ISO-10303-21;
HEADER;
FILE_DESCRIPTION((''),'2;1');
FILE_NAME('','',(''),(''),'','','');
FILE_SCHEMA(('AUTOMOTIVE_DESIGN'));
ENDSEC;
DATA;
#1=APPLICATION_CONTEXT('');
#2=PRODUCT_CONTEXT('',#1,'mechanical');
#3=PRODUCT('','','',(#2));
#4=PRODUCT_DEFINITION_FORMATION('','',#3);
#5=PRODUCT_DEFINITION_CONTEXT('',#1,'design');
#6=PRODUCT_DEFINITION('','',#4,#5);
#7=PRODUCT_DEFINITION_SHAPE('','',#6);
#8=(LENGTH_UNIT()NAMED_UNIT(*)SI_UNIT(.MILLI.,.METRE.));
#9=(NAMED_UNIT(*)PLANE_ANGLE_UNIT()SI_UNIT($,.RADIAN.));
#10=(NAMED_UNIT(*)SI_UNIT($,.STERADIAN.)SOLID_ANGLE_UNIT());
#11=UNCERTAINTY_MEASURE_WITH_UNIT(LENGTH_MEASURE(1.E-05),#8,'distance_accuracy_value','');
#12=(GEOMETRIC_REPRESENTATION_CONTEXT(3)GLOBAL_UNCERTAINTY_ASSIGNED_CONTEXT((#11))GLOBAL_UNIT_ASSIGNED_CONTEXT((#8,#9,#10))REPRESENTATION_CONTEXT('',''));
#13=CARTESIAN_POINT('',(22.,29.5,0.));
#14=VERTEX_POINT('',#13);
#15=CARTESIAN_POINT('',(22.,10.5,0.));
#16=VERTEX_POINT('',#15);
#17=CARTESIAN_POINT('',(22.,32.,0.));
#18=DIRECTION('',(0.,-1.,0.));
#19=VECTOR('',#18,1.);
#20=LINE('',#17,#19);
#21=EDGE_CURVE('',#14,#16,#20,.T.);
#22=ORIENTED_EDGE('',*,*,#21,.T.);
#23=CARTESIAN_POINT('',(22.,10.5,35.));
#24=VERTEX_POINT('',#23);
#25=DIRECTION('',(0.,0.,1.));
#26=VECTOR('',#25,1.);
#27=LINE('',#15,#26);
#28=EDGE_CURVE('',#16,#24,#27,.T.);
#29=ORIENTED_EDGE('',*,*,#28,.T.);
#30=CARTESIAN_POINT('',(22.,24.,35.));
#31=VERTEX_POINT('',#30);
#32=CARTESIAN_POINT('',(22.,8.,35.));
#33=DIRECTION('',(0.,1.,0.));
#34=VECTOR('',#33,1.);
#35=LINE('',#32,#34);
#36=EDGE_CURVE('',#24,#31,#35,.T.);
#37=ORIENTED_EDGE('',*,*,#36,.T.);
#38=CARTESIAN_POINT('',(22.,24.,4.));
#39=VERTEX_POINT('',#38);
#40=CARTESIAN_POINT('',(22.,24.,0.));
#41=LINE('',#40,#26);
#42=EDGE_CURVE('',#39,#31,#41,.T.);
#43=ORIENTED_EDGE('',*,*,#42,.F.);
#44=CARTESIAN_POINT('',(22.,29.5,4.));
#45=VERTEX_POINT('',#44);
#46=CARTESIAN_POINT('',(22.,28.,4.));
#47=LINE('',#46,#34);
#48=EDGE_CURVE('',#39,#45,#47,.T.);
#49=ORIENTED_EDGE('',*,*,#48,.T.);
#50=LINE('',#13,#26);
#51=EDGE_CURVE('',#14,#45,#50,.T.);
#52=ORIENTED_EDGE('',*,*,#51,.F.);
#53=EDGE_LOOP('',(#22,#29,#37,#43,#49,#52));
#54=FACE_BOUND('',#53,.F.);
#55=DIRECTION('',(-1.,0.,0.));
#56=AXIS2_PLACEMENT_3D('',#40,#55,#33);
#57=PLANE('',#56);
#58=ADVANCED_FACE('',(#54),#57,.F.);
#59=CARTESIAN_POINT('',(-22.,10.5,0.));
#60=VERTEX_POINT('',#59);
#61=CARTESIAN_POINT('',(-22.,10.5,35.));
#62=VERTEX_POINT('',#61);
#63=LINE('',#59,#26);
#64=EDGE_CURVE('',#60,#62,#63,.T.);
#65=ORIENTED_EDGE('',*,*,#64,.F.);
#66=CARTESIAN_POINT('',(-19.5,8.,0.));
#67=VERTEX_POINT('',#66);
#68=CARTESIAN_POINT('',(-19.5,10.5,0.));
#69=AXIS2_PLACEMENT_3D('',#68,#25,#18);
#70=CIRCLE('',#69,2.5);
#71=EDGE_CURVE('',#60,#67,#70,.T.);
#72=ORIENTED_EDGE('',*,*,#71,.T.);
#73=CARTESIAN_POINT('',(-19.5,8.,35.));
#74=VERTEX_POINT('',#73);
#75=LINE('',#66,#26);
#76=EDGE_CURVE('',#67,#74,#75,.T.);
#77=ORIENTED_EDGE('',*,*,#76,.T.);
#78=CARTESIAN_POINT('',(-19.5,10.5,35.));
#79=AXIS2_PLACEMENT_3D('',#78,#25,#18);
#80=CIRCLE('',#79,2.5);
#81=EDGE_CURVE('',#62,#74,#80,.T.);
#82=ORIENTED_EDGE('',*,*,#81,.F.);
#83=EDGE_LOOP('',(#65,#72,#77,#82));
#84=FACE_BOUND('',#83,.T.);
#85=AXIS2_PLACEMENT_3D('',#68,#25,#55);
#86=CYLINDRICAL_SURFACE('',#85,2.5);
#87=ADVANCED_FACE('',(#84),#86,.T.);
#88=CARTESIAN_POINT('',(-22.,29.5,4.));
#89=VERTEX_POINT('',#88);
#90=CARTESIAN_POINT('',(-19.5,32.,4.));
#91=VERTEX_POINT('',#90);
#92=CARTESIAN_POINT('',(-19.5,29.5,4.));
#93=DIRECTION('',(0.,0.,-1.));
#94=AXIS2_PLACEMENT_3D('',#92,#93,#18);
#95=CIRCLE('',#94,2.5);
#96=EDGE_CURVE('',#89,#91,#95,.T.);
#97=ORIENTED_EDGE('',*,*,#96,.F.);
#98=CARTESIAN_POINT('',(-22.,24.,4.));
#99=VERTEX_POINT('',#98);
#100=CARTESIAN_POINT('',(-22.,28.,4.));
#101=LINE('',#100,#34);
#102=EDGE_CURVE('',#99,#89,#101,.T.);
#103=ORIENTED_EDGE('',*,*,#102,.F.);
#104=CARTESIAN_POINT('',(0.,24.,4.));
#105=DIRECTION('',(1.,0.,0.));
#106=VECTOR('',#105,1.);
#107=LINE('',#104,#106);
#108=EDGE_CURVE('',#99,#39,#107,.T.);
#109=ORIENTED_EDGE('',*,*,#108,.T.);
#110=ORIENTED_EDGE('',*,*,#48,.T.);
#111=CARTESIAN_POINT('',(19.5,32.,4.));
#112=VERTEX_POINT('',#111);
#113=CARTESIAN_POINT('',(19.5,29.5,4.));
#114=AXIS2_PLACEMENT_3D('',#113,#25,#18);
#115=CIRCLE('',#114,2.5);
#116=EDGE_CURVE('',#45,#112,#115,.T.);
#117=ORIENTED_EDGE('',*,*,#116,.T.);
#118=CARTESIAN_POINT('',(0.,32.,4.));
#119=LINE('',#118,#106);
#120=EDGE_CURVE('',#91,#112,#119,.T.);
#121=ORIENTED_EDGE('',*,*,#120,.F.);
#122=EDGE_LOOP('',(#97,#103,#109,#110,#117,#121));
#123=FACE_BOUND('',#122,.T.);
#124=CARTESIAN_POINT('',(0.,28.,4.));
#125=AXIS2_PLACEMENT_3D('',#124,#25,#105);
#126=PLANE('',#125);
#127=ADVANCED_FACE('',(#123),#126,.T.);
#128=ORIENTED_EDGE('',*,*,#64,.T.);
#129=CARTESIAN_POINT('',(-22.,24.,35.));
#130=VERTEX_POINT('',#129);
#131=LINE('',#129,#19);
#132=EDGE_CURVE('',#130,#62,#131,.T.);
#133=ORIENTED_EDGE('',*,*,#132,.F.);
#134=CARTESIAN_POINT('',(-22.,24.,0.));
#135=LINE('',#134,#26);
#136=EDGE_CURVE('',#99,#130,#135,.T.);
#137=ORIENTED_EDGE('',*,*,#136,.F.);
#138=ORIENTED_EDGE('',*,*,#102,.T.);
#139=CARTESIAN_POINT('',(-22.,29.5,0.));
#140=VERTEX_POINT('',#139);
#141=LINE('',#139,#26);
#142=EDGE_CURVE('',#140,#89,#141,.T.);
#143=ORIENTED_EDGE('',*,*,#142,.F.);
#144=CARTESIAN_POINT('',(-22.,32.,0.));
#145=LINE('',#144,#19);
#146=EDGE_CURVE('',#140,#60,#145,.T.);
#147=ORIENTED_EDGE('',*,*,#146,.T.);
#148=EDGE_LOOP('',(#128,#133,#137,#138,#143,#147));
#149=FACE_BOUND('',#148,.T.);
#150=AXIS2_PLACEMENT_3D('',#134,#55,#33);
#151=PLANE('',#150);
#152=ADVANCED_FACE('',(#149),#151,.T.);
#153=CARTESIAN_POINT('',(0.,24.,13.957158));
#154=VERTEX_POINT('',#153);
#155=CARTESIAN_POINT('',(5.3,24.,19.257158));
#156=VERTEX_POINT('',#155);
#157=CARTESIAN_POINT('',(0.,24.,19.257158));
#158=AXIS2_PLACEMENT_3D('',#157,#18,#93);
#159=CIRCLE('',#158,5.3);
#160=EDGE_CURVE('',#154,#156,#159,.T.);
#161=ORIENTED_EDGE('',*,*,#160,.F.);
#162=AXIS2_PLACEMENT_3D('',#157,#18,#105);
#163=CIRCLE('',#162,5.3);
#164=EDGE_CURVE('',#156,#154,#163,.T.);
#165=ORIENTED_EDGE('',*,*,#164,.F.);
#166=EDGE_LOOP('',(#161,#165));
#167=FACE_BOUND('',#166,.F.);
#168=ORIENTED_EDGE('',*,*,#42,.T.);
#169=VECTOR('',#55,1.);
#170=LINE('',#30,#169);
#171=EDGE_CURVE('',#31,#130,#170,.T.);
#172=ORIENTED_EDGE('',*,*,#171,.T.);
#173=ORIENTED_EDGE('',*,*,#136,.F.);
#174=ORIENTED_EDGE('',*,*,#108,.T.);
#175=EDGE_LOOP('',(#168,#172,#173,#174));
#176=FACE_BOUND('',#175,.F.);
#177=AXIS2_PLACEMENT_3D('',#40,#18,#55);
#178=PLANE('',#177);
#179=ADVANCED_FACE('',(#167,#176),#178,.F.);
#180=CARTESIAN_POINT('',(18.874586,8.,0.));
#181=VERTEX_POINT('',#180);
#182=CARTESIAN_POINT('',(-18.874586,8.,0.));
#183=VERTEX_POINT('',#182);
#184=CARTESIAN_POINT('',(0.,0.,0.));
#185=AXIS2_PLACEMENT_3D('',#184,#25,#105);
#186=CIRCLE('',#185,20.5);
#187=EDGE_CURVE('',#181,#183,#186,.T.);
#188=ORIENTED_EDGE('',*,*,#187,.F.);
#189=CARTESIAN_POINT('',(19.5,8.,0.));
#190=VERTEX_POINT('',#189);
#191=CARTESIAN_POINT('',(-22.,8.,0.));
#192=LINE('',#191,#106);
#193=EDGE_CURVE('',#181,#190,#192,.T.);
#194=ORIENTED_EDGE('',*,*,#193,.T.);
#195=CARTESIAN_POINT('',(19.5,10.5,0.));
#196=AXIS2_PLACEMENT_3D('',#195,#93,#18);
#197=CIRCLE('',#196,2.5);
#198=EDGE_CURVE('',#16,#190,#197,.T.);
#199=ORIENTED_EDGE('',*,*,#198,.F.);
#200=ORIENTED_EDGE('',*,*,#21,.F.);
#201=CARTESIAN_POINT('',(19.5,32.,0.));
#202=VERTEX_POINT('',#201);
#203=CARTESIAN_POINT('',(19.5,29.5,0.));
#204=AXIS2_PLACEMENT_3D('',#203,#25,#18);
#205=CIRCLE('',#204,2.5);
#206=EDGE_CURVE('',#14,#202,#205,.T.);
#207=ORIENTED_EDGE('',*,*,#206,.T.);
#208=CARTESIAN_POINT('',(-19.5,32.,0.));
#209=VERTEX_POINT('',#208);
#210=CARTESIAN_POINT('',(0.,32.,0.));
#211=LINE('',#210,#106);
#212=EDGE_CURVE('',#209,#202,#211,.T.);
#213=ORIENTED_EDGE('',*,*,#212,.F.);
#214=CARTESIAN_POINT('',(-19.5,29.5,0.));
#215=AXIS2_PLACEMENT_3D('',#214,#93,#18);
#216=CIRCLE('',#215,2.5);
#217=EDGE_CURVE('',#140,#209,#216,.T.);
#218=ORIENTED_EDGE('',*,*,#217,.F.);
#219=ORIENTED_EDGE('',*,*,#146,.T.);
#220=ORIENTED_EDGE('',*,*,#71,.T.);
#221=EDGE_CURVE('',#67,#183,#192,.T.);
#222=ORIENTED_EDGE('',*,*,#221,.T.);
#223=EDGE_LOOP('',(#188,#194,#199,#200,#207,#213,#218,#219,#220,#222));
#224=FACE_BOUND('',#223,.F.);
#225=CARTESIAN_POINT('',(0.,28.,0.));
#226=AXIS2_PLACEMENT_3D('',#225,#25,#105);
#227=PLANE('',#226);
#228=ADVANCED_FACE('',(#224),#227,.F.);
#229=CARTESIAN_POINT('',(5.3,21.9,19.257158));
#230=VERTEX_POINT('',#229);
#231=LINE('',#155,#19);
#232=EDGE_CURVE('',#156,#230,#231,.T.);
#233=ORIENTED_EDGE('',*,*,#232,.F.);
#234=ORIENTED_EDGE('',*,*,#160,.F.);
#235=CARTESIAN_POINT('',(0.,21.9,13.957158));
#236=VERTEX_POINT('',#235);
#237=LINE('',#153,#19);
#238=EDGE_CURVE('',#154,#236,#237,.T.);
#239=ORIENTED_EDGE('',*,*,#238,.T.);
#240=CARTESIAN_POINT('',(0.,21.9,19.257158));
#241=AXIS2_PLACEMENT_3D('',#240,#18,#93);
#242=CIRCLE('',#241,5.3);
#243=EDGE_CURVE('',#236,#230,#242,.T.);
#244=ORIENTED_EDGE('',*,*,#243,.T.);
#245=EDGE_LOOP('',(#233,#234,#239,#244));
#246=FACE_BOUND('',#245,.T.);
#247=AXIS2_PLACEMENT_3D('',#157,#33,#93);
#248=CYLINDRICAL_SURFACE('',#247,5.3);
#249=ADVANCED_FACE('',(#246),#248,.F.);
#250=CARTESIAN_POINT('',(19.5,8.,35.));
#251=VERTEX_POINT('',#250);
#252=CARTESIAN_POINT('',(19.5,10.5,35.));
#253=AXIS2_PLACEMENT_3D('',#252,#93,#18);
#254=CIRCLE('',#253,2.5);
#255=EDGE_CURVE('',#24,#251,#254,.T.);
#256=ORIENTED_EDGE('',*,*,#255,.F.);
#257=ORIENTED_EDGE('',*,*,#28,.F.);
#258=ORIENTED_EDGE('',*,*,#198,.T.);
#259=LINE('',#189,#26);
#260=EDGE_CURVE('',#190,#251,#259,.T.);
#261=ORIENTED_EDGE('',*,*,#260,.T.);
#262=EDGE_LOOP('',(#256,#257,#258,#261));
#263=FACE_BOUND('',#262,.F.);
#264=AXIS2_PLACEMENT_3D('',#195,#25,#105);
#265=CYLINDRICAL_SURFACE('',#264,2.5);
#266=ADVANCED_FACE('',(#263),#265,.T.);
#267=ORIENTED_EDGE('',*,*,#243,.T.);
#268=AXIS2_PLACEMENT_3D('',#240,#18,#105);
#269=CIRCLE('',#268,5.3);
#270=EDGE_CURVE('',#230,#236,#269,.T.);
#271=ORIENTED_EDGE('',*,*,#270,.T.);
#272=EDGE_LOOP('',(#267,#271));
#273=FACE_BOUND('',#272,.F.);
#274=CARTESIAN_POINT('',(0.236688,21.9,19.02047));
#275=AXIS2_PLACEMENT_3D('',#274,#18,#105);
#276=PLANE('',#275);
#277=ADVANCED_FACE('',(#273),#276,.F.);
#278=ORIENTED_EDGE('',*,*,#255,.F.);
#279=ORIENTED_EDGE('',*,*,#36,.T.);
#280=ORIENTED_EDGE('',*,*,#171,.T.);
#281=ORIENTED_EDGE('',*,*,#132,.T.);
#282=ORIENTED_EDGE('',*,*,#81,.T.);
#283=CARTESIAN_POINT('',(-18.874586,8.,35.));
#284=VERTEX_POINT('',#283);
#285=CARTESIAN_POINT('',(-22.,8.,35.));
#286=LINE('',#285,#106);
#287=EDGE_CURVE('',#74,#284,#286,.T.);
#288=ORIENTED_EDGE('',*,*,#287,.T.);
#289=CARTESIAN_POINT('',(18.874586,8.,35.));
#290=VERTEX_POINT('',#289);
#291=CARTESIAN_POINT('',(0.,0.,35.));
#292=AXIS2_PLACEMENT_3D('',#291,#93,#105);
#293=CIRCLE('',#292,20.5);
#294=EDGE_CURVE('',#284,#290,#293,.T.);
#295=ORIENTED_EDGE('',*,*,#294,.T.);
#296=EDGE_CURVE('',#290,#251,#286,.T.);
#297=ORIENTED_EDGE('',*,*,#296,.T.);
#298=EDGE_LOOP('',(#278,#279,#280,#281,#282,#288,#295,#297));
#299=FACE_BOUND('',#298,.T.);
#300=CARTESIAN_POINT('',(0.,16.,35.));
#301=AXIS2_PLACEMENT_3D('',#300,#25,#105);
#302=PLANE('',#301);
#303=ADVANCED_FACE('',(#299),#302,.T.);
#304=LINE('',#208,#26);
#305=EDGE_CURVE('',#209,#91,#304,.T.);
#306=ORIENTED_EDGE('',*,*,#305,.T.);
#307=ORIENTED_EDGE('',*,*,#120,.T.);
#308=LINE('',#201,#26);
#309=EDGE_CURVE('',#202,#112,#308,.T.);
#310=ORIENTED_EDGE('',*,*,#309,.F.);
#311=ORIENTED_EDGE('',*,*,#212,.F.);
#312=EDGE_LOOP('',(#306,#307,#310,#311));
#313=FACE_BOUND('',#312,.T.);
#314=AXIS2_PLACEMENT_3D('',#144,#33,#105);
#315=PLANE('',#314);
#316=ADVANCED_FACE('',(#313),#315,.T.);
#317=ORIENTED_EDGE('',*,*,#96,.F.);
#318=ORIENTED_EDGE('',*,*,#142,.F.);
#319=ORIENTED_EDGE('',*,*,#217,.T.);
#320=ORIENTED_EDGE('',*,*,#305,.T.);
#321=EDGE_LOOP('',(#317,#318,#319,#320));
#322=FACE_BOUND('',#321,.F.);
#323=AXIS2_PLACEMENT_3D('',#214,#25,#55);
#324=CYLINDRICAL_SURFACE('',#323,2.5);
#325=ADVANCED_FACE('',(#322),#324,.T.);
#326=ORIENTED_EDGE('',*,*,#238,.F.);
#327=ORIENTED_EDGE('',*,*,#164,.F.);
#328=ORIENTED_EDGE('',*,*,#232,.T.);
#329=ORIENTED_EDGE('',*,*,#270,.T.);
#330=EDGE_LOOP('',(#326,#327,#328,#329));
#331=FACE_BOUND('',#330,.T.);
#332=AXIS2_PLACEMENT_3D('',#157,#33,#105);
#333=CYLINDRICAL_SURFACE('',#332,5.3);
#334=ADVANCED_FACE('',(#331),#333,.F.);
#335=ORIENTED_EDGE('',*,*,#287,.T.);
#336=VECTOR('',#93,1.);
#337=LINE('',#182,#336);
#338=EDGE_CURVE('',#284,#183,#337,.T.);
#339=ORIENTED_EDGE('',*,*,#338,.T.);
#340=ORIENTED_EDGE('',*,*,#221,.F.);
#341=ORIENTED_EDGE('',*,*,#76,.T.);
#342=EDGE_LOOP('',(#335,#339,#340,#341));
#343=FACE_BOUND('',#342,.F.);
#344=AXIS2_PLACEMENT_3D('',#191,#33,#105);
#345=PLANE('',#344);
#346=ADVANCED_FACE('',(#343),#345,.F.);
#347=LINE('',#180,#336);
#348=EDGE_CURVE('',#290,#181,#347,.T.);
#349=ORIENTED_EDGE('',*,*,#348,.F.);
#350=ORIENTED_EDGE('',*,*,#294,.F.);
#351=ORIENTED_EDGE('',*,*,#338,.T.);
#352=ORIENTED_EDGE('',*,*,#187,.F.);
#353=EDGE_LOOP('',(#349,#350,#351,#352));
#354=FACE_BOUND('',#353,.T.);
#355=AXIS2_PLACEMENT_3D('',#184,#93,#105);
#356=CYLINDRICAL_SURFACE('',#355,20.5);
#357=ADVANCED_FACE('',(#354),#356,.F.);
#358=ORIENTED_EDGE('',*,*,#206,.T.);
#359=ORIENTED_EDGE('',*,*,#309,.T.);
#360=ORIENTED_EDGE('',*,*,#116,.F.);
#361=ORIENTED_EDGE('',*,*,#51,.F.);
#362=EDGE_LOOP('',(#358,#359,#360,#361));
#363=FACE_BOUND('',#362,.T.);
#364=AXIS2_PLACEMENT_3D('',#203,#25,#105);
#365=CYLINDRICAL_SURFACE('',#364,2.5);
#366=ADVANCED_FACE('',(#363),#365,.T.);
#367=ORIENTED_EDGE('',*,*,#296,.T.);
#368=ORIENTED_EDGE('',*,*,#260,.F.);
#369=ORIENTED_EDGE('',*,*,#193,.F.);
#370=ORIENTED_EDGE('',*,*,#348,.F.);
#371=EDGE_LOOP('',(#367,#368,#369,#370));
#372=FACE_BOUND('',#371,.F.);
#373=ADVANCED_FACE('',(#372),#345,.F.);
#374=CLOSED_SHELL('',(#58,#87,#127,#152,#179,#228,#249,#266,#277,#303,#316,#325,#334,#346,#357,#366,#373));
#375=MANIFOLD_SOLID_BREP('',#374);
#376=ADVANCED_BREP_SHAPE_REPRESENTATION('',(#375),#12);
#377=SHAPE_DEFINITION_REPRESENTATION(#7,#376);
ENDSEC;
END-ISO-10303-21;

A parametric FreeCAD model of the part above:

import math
import FreeCAD as App
import Part
import Sketcher
Q = App.Units.Quantity


def edges_at(feature, points):
    """Names of the edges that pass closest to the given points."""
    edges = feature.Shape.Edges
    near = lambda p: min(range(len(edges)), key=lambda i: edges[i].distToShape(Part.Vertex(*p))[0])
    return sorted({f"Edge{near(p) + 1}" for p in points})


def add_polygon(sketch, points):
    """Adds a closed chain of lines whose ends are joined by coincident constraints."""
    first, n = sketch.GeometryCount, len(points)
    for a, b in zip(points, points[1:] + points[:1]):
        sketch.addGeometry(Part.LineSegment(App.Vector(*a, 0), App.Vector(*b, 0)), False)
    for i in range(n):
        sketch.addConstraint(Sketcher.Constraint("Coincident", first + i, 2, first + (i + 1) % n, 1))

doc = App.newDocument("Part")
body = doc.addObject("PartDesign::Body", "Body")

# Sketch on XY plane
sketch1 = doc.addObject("Sketcher::SketchObject", "Sketch")
body.addObject(sketch1)
sketch1.AttachmentSupport = (doc.XY_Plane, [""])
sketch1.MapMode = "FlatFace"
sketch1.addGeometry(Part.Circle(App.Vector(0, 0, 0), App.Vector(0, 0, 1), 20), False)
sketch1.addConstraint(Sketcher.Constraint("Coincident", 0, 3, -1, 1))
sketch1.addConstraint(Sketcher.Constraint("Diameter", 0, Q("41 mm")))
pad1 = doc.addObject("PartDesign::Pad", "Pad")
body.addObject(pad1)
pad1.Profile = sketch1
pad1.Length = 50
body2 = doc.addObject("PartDesign::Body", "Body001")

# Sketch on XY plane
sketch2 = doc.addObject("Sketcher::SketchObject", "Sketch001")
body2.addObject(sketch2)
sketch2.AttachmentSupport = (doc.getObject("XY_Plane001"), [""])
sketch2.MapMode = "FlatFace"
add_polygon(sketch2, [(-22, 8), (22, 8), (22, 24), (-22, 24)])  # lines 0-3
sketch2.addConstraint(Sketcher.Constraint("Horizontal", 0))
sketch2.addConstraint(Sketcher.Constraint("Vertical", 1))
sketch2.addConstraint(Sketcher.Constraint("Horizontal", 2))
sketch2.addConstraint(Sketcher.Constraint("Vertical", 3))
sketch2.addConstraint(Sketcher.Constraint("DistanceX", 0, 1, 0, 2, Q("44 mm")))
sketch2.addConstraint(Sketcher.Constraint("DistanceY", 1, 1, 1, 2, Q("16 mm")))
sketch2.addConstraint(Sketcher.Constraint("DistanceX", -1, 1, 0, 2, Q("22 mm")))
sketch2.addConstraint(Sketcher.Constraint("DistanceY", -1, 1, 0, 2, Q("8 mm")))
pad2 = doc.addObject("PartDesign::Pad", "Pad001")
body2.addObject(pad2)
pad2.Profile = sketch2
pad2.Length = 35
doc.recompute()

boolean = doc.addObject("PartDesign::Boolean", "Boolean")
body2.addObject(boolean)
boolean.Type = "Cut"
boolean.addObjects([body])

# Sketch on XY plane
sketch3 = doc.addObject("Sketcher::SketchObject", "Sketch002")
body2.addObject(sketch3)
sketch3.AttachmentSupport = (doc.getObject("XY_Plane001"), [""])
sketch3.MapMode = "FlatFace"
add_polygon(sketch3, [(-22, 32), (-22, 24), (22, 24), (22, 32)])  # lines 0-3
sketch3.addConstraint(Sketcher.Constraint("Vertical", 0))
sketch3.addConstraint(Sketcher.Constraint("Horizontal", 1))
sketch3.addConstraint(Sketcher.Constraint("Vertical", 2))
sketch3.addConstraint(Sketcher.Constraint("Horizontal", 3))
sketch3.addConstraint(Sketcher.Constraint("DistanceX", 1, 1, 1, 2, Q("44 mm")))
sketch3.addConstraint(Sketcher.Constraint("DistanceY", 0, 2, 0, 1, Q("8 mm")))
sketch3.addConstraint(Sketcher.Constraint("DistanceX", 0, 2, -1, 1, Q("22 mm")))
sketch3.addConstraint(Sketcher.Constraint("DistanceY", -1, 1, 0, 2, Q("24 mm")))
pad3 = doc.addObject("PartDesign::Pad", "Pad002")
body2.addObject(pad3)
pad3.Profile = sketch3
pad3.Length = 4
doc.recompute()

fillet = doc.addObject("PartDesign::Fillet", "Fillet")
body2.addObject(fillet)
fillet.Base = (pad3, edges_at(pad3, [
    (-22, 8, 17.5),
    (22, 8, 17.5),
    (-22, 32, 2),
    (22, 32, 2),
]))
fillet.Radius = 2.5
body3 = doc.addObject("PartDesign::Body", "Body002")

# Sketch on XZ plane
sketch4 = doc.addObject("Sketcher::SketchObject", "Sketch003")
body3.addObject(sketch4)
sketch4.AttachmentSupport = (doc.getObject("XZ_Plane002"), [""])
sketch4.MapMode = "FlatFace"
sketch4.addGeometry(Part.ArcOfCircle(Part.Circle(App.Vector(0, 19, 0), App.Vector(0, 0, 1), 5), math.radians(-90), math.radians(0)), False)
sketch4.addGeometry(Part.ArcOfCircle(Part.Circle(App.Vector(0, 19, 0), App.Vector(0, 0, 1), 5), math.radians(0), math.radians(270)), False)
sketch4.addConstraint(Sketcher.Constraint("Tangent", 0, 1, 1, 2))
sketch4.addConstraint(Sketcher.Constraint("Coincident", 1, 1, 0, 2))
sketch4.addConstraint(Sketcher.Constraint("PointOnObject", 0, 3, -2))
sketch4.addConstraint(Sketcher.Constraint("PointOnObject", 0, 1, -2))
sketch4.addConstraint(Sketcher.Constraint("Horizontal", 0, 3, 1, 1))
sketch4.addConstraint(Sketcher.Constraint("Radius", 0, Q("5.3 mm")))
sketch4.addConstraint(Sketcher.Constraint("DistanceY", -1, 1, 0, 3, Q("19.257158 mm")))
pad4 = doc.addObject("PartDesign::Pad", "Pad003")
body3.addObject(pad4)
pad4.Profile = sketch4
pad4.Length = 2.1
body4 = doc.addObject("PartDesign::Body", "Body003")
doc.recompute()

body3.Placement = App.Placement(App.Vector(0, 24, 0), App.Rotation(App.Vector(0, 0, 1), 0))
boolean2 = doc.addObject("PartDesign::Boolean", "Boolean001")
body4.addObject(boolean2)
boolean2.Type = "Fuse"
boolean2.addObjects([body3])
doc.recompute()

boolean3 = doc.addObject("PartDesign::Boolean", "Boolean002")
body2.addObject(boolean3)
boolean3.Type = "Cut"
boolean3.addObjects([body4])

doc.recompute()
